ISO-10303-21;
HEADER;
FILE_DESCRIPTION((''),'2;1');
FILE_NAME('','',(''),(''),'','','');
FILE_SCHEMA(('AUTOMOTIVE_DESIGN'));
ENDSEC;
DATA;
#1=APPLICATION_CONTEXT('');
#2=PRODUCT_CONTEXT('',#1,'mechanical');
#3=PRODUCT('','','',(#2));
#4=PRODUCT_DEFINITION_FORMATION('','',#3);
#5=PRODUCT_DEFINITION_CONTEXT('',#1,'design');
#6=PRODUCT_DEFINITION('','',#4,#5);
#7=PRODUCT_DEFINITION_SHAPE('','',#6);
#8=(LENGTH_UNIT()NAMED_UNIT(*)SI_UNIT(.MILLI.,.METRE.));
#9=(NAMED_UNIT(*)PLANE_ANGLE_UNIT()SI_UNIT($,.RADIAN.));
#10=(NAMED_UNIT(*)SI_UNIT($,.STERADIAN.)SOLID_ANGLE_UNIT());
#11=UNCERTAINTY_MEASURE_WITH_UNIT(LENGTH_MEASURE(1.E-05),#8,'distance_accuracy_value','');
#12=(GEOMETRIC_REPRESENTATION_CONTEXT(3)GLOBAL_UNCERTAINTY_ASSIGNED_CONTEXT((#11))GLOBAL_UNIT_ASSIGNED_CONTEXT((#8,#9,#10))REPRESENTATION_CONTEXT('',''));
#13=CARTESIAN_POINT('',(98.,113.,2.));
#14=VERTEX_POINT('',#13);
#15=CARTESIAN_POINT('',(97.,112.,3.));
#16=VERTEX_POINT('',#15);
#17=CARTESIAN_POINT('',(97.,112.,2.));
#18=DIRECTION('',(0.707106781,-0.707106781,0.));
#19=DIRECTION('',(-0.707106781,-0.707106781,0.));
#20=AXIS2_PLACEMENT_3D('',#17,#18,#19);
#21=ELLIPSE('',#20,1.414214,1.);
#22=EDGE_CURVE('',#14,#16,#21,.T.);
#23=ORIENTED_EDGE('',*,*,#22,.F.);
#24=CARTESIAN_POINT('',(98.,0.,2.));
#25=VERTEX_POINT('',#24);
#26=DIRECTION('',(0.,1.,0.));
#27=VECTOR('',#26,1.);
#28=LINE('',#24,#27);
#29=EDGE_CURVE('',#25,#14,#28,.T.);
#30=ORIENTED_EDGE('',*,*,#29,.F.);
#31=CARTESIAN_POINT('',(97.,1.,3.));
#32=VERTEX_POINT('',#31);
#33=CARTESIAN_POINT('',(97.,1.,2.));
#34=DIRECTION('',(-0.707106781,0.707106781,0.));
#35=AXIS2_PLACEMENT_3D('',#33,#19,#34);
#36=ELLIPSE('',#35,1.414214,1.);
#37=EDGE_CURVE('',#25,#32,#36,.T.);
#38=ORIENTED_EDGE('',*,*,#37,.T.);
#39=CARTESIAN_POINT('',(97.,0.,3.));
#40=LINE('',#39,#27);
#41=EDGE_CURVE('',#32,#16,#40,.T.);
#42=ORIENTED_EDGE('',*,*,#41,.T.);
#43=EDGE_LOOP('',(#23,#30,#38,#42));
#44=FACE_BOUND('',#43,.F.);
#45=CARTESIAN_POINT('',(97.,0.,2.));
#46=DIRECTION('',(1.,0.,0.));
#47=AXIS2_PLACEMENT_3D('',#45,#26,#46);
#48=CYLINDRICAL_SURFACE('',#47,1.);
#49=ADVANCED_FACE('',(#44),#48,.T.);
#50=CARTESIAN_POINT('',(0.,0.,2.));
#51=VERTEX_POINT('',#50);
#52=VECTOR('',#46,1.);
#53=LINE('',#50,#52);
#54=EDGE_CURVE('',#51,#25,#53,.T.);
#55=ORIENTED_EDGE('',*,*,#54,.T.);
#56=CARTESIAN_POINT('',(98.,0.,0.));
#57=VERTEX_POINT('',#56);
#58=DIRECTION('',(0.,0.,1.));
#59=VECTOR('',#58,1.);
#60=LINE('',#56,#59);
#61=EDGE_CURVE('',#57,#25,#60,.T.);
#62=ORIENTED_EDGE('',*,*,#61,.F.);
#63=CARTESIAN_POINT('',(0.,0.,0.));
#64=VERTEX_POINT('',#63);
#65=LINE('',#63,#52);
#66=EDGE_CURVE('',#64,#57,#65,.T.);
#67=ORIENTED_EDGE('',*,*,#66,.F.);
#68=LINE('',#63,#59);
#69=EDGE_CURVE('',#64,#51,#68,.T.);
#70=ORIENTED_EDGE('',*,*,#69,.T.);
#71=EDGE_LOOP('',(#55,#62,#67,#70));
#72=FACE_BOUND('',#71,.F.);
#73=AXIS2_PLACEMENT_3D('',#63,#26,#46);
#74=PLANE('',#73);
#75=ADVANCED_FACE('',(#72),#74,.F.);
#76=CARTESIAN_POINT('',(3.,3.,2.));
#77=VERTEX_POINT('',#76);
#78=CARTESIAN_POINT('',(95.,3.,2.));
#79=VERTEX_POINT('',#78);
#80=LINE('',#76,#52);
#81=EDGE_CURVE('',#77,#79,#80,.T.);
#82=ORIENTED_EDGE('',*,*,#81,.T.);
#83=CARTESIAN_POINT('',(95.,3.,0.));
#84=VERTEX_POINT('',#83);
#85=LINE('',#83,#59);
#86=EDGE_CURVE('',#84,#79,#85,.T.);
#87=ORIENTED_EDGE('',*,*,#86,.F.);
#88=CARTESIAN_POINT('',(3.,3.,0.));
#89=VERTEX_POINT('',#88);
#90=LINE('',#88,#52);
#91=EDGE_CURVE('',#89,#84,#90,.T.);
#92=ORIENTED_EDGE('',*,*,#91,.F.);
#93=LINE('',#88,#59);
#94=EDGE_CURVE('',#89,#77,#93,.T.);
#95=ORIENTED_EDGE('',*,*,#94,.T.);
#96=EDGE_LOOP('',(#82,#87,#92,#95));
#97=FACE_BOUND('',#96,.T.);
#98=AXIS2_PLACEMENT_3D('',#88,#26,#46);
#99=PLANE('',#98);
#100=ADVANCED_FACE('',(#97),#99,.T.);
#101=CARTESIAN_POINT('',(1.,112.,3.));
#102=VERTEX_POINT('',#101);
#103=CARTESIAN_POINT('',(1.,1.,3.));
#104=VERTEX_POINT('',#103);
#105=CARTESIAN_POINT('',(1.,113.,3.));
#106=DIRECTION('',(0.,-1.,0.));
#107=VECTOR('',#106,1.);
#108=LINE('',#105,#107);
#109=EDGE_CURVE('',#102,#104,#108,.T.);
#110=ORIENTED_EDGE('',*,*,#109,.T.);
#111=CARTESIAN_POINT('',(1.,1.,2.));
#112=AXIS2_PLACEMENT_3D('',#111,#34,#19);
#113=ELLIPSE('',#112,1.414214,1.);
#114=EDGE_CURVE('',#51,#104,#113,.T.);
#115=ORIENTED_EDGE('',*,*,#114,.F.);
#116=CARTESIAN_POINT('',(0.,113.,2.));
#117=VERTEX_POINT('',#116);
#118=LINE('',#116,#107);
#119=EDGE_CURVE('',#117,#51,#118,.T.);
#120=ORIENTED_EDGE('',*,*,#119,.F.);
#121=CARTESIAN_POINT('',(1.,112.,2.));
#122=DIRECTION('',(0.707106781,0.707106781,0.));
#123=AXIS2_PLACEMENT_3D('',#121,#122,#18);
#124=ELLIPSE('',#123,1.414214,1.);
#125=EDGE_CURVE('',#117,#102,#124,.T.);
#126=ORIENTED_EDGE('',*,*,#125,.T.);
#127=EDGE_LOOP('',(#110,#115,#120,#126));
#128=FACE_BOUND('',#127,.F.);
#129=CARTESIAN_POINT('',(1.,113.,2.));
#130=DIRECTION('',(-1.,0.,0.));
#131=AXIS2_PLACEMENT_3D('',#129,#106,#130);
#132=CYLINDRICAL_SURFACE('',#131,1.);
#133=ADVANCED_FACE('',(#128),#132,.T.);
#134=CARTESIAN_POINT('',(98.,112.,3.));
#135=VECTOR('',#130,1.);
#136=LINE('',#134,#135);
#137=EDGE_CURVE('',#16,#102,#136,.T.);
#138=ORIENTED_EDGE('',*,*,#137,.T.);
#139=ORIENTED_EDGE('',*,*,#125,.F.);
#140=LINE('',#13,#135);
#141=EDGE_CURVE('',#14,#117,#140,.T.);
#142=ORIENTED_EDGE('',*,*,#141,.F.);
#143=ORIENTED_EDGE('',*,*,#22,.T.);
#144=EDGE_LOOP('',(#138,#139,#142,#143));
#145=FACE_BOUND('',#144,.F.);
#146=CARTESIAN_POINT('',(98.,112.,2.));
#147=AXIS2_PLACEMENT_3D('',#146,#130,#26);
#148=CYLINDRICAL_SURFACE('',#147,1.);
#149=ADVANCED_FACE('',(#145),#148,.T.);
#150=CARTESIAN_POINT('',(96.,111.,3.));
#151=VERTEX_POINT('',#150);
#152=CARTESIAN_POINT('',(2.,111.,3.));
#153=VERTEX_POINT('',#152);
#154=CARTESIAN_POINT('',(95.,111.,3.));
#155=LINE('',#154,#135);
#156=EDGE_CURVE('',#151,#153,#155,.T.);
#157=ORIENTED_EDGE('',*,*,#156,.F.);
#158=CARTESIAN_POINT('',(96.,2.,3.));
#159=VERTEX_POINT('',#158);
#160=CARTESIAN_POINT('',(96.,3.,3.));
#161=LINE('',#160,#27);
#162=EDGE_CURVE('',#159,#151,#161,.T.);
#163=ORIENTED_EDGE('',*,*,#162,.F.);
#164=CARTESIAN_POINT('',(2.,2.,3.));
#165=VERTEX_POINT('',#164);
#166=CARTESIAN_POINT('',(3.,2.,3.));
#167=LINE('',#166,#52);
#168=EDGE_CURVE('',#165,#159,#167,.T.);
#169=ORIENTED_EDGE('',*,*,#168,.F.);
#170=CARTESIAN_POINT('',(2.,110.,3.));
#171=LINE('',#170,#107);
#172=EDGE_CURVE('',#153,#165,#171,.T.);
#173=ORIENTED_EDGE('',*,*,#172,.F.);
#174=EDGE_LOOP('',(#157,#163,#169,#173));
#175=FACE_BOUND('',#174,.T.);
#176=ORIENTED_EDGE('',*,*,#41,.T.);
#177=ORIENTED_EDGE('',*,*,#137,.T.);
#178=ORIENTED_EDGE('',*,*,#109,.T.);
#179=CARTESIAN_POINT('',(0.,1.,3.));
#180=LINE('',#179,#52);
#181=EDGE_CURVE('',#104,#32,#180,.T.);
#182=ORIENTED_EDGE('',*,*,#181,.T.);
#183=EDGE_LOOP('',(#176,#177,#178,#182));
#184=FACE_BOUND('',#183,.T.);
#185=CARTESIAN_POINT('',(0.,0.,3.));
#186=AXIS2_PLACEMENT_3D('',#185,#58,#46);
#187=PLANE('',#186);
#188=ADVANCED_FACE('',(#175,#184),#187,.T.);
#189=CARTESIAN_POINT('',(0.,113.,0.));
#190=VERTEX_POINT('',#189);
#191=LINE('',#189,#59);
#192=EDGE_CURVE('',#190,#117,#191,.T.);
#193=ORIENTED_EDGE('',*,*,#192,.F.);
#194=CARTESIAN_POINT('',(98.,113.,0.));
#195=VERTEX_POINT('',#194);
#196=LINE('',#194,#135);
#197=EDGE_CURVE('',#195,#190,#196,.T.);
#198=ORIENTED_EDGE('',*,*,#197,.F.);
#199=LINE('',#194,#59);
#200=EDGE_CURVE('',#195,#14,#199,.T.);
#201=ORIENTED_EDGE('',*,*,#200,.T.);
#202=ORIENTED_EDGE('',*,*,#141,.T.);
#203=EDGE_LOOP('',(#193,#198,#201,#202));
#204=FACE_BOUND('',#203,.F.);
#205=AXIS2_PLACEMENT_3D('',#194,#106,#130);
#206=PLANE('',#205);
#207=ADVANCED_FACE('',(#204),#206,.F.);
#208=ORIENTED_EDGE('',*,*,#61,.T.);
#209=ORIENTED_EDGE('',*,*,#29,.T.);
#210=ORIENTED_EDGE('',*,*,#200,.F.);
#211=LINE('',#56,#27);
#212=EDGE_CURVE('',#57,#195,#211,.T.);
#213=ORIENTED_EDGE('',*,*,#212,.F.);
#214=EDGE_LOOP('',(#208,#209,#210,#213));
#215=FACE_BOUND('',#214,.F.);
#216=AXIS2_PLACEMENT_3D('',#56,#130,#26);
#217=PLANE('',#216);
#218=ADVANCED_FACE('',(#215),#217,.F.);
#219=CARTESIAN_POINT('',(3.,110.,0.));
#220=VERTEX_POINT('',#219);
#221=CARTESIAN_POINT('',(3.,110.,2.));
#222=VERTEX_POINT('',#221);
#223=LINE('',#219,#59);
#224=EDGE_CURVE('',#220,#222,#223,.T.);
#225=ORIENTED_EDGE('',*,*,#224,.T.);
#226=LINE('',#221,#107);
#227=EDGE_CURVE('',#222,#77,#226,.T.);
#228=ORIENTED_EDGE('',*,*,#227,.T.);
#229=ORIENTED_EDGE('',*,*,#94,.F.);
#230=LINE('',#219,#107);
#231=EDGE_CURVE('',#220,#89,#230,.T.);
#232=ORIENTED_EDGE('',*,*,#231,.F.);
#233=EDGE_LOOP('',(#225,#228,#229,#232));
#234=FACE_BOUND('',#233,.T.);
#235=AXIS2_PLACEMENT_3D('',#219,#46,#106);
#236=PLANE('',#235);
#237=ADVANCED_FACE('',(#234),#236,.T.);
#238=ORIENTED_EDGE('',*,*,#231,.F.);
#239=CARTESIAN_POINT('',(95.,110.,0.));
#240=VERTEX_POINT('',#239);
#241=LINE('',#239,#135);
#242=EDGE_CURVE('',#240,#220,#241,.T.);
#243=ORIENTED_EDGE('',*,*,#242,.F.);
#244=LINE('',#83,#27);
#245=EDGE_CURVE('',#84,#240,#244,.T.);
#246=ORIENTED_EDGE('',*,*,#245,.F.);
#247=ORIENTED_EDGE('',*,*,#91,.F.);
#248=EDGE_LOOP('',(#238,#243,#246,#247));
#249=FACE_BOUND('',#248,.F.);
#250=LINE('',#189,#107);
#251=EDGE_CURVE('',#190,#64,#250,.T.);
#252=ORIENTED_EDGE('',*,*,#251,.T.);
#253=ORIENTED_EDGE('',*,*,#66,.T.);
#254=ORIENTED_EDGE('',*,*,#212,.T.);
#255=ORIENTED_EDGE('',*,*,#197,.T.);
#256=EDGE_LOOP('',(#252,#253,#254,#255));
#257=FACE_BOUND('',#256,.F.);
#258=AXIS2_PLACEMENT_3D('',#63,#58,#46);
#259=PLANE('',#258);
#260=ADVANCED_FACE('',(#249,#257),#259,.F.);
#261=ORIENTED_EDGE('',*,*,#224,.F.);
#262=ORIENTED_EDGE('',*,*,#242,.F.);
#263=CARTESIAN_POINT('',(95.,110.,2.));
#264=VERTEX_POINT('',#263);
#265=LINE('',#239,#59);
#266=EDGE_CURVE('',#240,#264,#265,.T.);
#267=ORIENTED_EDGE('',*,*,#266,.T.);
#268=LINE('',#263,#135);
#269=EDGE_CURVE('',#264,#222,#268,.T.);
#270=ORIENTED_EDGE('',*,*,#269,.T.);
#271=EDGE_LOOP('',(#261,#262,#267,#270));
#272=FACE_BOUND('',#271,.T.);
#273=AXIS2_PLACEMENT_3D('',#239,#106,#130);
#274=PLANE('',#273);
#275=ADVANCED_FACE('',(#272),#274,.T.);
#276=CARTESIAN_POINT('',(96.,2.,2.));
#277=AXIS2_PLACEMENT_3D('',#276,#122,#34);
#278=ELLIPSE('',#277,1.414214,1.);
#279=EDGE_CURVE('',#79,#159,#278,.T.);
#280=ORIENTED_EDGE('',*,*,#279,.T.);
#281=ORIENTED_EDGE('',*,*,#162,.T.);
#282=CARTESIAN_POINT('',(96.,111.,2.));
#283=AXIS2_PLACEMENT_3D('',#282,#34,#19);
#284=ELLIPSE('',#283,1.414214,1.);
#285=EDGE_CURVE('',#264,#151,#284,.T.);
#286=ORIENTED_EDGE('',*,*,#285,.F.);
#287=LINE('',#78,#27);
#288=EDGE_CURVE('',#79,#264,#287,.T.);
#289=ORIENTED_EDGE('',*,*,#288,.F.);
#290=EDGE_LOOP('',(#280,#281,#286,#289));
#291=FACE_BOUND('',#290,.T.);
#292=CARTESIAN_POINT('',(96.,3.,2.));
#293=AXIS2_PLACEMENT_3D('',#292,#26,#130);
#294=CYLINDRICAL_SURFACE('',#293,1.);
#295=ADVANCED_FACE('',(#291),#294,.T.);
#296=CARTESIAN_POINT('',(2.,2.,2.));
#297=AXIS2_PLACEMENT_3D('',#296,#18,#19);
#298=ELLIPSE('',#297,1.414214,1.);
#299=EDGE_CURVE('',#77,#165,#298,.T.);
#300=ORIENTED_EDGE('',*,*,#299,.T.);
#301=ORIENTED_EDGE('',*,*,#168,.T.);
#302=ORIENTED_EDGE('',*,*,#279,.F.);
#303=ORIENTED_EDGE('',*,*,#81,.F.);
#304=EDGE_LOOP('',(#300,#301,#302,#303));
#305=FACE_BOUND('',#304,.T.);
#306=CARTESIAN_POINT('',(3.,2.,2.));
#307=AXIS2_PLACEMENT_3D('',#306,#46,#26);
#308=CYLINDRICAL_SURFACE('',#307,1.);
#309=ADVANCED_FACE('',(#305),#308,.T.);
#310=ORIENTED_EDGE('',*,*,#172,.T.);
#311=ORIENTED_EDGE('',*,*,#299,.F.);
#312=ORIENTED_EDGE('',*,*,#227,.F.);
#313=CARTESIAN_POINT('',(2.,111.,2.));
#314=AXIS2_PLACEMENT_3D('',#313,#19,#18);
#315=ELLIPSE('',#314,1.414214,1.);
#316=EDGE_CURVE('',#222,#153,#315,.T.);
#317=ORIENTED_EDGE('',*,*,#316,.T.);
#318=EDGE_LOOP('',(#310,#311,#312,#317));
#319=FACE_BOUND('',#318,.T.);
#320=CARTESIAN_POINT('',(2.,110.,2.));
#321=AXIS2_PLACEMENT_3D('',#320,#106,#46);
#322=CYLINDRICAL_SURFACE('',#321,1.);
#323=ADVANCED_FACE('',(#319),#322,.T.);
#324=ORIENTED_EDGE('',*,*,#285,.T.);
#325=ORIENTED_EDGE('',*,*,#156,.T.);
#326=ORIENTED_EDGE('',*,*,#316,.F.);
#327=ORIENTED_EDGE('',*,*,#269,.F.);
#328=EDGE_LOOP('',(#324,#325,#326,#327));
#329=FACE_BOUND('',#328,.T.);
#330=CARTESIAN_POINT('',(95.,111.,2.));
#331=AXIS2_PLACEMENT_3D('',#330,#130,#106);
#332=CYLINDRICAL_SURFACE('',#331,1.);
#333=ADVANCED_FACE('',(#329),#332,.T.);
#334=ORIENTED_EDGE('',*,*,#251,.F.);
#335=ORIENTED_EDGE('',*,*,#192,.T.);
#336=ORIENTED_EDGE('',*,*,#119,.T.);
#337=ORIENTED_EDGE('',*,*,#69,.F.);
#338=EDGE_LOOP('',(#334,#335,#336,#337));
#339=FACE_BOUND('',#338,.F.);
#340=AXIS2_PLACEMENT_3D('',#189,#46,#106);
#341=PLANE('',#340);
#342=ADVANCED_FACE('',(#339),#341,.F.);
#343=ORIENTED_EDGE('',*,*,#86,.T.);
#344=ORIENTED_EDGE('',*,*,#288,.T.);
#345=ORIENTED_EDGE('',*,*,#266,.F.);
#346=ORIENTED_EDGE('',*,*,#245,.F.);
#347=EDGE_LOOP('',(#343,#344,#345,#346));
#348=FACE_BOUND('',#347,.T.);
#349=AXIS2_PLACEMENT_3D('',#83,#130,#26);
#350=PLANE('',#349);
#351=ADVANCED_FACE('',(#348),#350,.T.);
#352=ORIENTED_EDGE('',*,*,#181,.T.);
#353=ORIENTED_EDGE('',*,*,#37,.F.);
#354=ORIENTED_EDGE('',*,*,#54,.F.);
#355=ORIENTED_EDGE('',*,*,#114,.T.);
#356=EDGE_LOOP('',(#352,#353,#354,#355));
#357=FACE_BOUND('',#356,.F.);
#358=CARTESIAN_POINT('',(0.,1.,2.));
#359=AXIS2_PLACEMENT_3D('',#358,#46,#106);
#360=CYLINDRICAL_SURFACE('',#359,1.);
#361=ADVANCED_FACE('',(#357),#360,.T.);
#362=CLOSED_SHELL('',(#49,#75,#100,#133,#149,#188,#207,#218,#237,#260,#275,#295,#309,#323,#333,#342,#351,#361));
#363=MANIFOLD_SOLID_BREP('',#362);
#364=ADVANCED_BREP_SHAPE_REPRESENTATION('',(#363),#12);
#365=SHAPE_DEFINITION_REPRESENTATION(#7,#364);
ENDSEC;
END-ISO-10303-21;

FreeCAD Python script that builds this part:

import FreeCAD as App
import Part
import Sketcher

V = App.Vector
Q = App.Units.Quantity


def edges_at(feature, points):
    """Names of the edges that pass closest to the given points."""
    edges = feature.Shape.Edges
    near = lambda p: min(range(len(edges)), key=lambda i: edges[i].distToShape(Part.Vertex(*p))[0])
    return sorted({f"Edge{near(p) + 1}" for p in points})

doc = App.newDocument("Part")
body = doc.addObject("PartDesign::Body", "Body")

sketch1 = body.newObject("Sketcher::SketchObject", "Sketch")
sketch1.AttachmentSupport = (doc.getObject("XY_Plane"), [""])
sketch1.MapMode = "FlatFace"
sketch1.addGeometry([
    Part.LineSegment(V(0, 113, 0), V(0, 0, 0)),
    Part.LineSegment(V(0, 0, 0), V(98, 0, 0)),
    Part.LineSegment(V(98, 0, 0), V(98, 113, 0)),
    Part.LineSegment(V(98, 113, 0), V(0, 113, 0)),
    Part.LineSegment(V(95, 3, 0), V(3, 3, 0)),
    Part.LineSegment(V(3, 3, 0), V(3, 110, 0)),
    Part.LineSegment(V(3, 110, 0), V(95, 110, 0)),
    Part.LineSegment(V(95, 110, 0), V(95, 3, 0)),
], False)
sketch1.addConstraint([
    Sketcher.Constraint("Coincident", 0, 2, 1, 1),
    Sketcher.Constraint("Coincident", 1, 2, 2, 1),
    Sketcher.Constraint("Coincident", 2, 2, 3, 1),
    Sketcher.Constraint("Coincident", 3, 2, 0, 1),
    Sketcher.Constraint("Coincident", 4, 2, 5, 1),
    Sketcher.Constraint("Coincident", 5, 2, 6, 1),
    Sketcher.Constraint("Coincident", 6, 2, 7, 1),
    Sketcher.Constraint("Coincident", 7, 2, 4, 1),
    Sketcher.Constraint("Vertical", 0),
    Sketcher.Constraint("Horizontal", 1),
    Sketcher.Constraint("Vertical", 2),
    Sketcher.Constraint("Horizontal", 3),
    Sketcher.Constraint("Horizontal", 4),
    Sketcher.Constraint("Vertical", 5),
    Sketcher.Constraint("Horizontal", 6),
    Sketcher.Constraint("Vertical", 7),
    Sketcher.Constraint("Coincident", 0, 2, -1, 1),
    Sketcher.Constraint("DistanceX", 1, 1, 1, 2, Q("98 mm")),
    Sketcher.Constraint("DistanceX", 4, 2, 4, 1, Q("92 mm")),
    Sketcher.Constraint("DistanceY", 0, 2, 0, 1, Q("113 mm")),
    Sketcher.Constraint("DistanceY", 5, 1, 5, 2, Q("107 mm")),
    Sketcher.Constraint("DistanceX", -1, 1, 4, 2, Q("3 mm")),
    Sketcher.Constraint("DistanceY", -1, 1, 4, 2, Q("3 mm")),
])
pad1 = body.newObject("PartDesign::Pad", "Pad")
pad1.Profile = sketch1
pad1.Length = 3
doc.recompute()

fillet = body.newObject("PartDesign::Fillet", "Fillet")
fillet.Base = (pad1, edges_at(pad1, [
    (3, 56.5, 3),
    (0, 56.5, 3),
    (49, 110, 3),
    (49, 113, 3),
    (98, 56.5, 3),
    (95, 56.5, 3),
    (49, 0, 3),
    (49, 3, 3),
]))
fillet.Radius = 1

doc.recompute()
